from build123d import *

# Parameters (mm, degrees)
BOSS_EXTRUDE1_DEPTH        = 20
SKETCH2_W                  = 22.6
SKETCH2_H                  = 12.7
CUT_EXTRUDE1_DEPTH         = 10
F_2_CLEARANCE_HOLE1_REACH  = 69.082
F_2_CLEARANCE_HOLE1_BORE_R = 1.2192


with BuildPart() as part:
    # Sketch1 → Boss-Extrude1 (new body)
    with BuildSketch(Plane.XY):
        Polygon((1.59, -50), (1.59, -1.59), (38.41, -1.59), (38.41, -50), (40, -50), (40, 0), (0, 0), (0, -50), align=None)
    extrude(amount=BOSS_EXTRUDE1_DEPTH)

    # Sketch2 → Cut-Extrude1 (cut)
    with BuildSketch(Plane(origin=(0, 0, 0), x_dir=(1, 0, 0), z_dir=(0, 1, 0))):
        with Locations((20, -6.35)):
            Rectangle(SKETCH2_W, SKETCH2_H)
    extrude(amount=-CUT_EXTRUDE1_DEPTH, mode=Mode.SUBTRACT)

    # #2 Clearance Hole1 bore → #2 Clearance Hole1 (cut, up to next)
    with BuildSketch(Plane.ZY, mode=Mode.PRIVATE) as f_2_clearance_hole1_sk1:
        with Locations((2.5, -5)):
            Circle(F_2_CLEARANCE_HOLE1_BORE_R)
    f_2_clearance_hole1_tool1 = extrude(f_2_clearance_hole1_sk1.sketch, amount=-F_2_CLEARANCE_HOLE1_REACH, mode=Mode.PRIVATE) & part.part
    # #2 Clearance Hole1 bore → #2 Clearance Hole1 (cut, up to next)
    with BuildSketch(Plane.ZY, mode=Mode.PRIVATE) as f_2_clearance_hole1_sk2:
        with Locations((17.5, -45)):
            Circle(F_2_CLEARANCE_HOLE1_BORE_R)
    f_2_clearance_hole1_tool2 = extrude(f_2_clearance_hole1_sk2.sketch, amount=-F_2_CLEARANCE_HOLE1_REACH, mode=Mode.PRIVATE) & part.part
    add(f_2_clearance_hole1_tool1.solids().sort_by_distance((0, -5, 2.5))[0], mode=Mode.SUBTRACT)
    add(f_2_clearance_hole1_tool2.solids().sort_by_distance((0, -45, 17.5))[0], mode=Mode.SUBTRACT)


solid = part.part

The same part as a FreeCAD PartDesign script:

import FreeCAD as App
import Part
import Sketcher
Q = App.Units.Quantity

doc = App.newDocument("Part")
body = doc.addObject("PartDesign::Body", "Body")

sketch1 = body.newObject("Sketcher::SketchObject", "Sketch")
sketch1.AttachmentSupport = (doc.getObject("XY_Plane"), [""])
sketch1.MapMode = "FlatFace"
sketch1.addGeometry(Part.LineSegment(App.Vector(1.59, -50, 0), App.Vector(1.59, -1.59, 0)), False)
sketch1.addGeometry(Part.LineSegment(App.Vector(1.59, -1.59, 0), App.Vector(38.41, -1.59, 0)), False)
sketch1.addGeometry(Part.LineSegment(App.Vector(38.41, -1.59, 0), App.Vector(38.41, -50, 0)), False)
sketch1.addGeometry(Part.LineSegment(App.Vector(38.41, -50, 0), App.Vector(40, -50, 0)), False)
sketch1.addGeometry(Part.LineSegment(App.Vector(40, -50, 0), App.Vector(40, 0, 0)), False)
sketch1.addGeometry(Part.LineSegment(App.Vector(40, 0, 0), App.Vector(0, 0, 0)), False)
sketch1.addGeometry(Part.LineSegment(App.Vector(0, 0, 0), App.Vector(0, -50, 0)), False)
sketch1.addGeometry(Part.LineSegment(App.Vector(0, -50, 0), App.Vector(1.59, -50, 0)), False)
sketch1.addConstraint(Sketcher.Constraint("Coincident", 0, 2, 1, 1))
sketch1.addConstraint(Sketcher.Constraint("Coincident", 1, 2, 2, 1))
sketch1.addConstraint(Sketcher.Constraint("Coincident", 2, 2, 3, 1))
sketch1.addConstraint(Sketcher.Constraint("Coincident", 3, 2, 4, 1))
sketch1.addConstraint(Sketcher.Constraint("Coincident", 4, 2, 5, 1))
sketch1.addConstraint(Sketcher.Constraint("Coincident", 5, 2, 6, 1))
sketch1.addConstraint(Sketcher.Constraint("Coincident", 6, 2, 7, 1))
sketch1.addConstraint(Sketcher.Constraint("Coincident", 7, 2, 0, 1))
sketch1.addConstraint(Sketcher.Constraint("Vertical", 0))
sketch1.addConstraint(Sketcher.Constraint("Horizontal", 1))
sketch1.addConstraint(Sketcher.Constraint("Vertical", 2))
sketch1.addConstraint(Sketcher.Constraint("Horizontal", 3))
sketch1.addConstraint(Sketcher.Constraint("Vertical", 4))
sketch1.addConstraint(Sketcher.Constraint("Horizontal", 5))
sketch1.addConstraint(Sketcher.Constraint("Vertical", 6))
sketch1.addConstraint(Sketcher.Constraint("Horizontal", 7))
sketch1.addConstraint(Sketcher.Constraint("Coincident", 5, 2, -1, 1))
sketch1.addConstraint(Sketcher.Constraint("Horizontal", 3, 2, 6, 2))
sketch1.addConstraint(Sketcher.Constraint("Equal", 3, 7))
sketch1.addConstraint(Sketcher.Constraint("DistanceX", 5, 2, 5, 1, Q("40 mm")))
sketch1.addConstraint(Sketcher.Constraint("DistanceY", 4, 1, 4, 2, Q("50 mm")))
sketch1.addConstraint(Sketcher.Constraint("DistanceX", 1, 1, 1, 2, Q("36.82 mm")))
sketch1.addConstraint(Sketcher.Constraint("DistanceY", 0, 1, 0, 2, Q("48.41 mm")))
pad1 = body.newObject("PartDesign::Pad", "Pad")
pad1.Profile = sketch1
pad1.Length = 20

sketch2 = body.newObject("Sketcher::SketchObject", "Sketch001")
sketch2.AttachmentSupport = (doc.getObject("XZ_Plane"), [""])
sketch2.MapMode = "FlatFace"
sketch2.addGeometry(Part.LineSegment(App.Vector(8.7, 0, 0), App.Vector(8.7, 12.7, 0)), False)
sketch2.addGeometry(Part.LineSegment(App.Vector(8.7, 12.7, 0), App.Vector(31.3, 12.7, 0)), False)
sketch2.addGeometry(Part.LineSegment(App.Vector(31.3, 12.7, 0), App.Vector(31.3, 0, 0)), False)
sketch2.addGeometry(Part.LineSegment(App.Vector(31.3, 0, 0), App.Vector(8.7, 0, 0)), False)
sketch2.addConstraint(Sketcher.Constraint("Coincident", 0, 2, 1, 1))
sketch2.addConstraint(Sketcher.Constraint("Coincident", 1, 2, 2, 1))
sketch2.addConstraint(Sketcher.Constraint("Coincident", 2, 2, 3, 1))
sketch2.addConstraint(Sketcher.Constraint("Coincident", 3, 2, 0, 1))
sketch2.addConstraint(Sketcher.Constraint("Vertical", 0))
sketch2.addConstraint(Sketcher.Constraint("Horizontal", 1))
sketch2.addConstraint(Sketcher.Constraint("Vertical", 2))
sketch2.addConstraint(Sketcher.Constraint("Horizontal", 3))
sketch2.addConstraint(Sketcher.Constraint("PointOnObject", 2, 2, -1))
sketch2.addConstraint(Sketcher.Constraint("DistanceX", 1, 1, 1, 2, Q("22.6 mm")))
sketch2.addConstraint(Sketcher.Constraint("DistanceY", 0, 1, 0, 2, Q("12.7 mm")))
sketch2.addConstraint(Sketcher.Constraint("DistanceX", -1, 1, 0, 2, Q("8.7 mm")))
pocket1 = body.newObject("PartDesign::Pocket", "Pocket")
pocket1.Profile = sketch2
pocket1.Length = 10
pocket1.Reversed = True

sketch3 = body.newObject("Sketcher::SketchObject", "Sketch002")
sketch3.AttachmentSupport = (doc.getObject("YZ_Plane"), [""])
sketch3.MapMode = "FlatFace"
sketch3.addGeometry(Part.Circle(App.Vector(-5, 2.5, 0), App.Vector(0, 0, 1), 1.2192), False)
sketch3.addConstraint(Sketcher.Constraint("DistanceX", 0, 3, -1, 1, Q("5 mm")))
sketch3.addConstraint(Sketcher.Constraint("Diameter", 0, Q("2.4384 mm")))
sketch3.addConstraint(Sketcher.Constraint("DistanceY", -1, 1, 0, 3, Q("2.5 mm")))
pocket2 = body.newObject("PartDesign::Pocket", "Pocket001")
pocket2.Profile = sketch3
pocket2.Type = "UpToFirst"
pocket2.Reversed = True

sketch4 = body.newObject("Sketcher::SketchObject", "Sketch003")
sketch4.AttachmentSupport = (doc.getObject("YZ_Plane"), [""])
sketch4.MapMode = "FlatFace"
sketch4.addGeometry(Part.Circle(App.Vector(-45, 17.5, 0), App.Vector(0, 0, 1), 1.2192), False)
sketch4.addConstraint(Sketcher.Constraint("DistanceX", 0, 3, -1, 1, Q("45 mm")))
sketch4.addConstraint(Sketcher.Constraint("Diameter", 0, Q("2.4384 mm")))
sketch4.addConstraint(Sketcher.Constraint("DistanceY", -1, 1, 0, 3, Q("17.5 mm")))
pocket3 = body.newObject("PartDesign::Pocket", "Pocket002")
pocket3.Profile = sketch4
pocket3.Type = "UpToFirst"
pocket3.Reversed = True

doc.recompute()
